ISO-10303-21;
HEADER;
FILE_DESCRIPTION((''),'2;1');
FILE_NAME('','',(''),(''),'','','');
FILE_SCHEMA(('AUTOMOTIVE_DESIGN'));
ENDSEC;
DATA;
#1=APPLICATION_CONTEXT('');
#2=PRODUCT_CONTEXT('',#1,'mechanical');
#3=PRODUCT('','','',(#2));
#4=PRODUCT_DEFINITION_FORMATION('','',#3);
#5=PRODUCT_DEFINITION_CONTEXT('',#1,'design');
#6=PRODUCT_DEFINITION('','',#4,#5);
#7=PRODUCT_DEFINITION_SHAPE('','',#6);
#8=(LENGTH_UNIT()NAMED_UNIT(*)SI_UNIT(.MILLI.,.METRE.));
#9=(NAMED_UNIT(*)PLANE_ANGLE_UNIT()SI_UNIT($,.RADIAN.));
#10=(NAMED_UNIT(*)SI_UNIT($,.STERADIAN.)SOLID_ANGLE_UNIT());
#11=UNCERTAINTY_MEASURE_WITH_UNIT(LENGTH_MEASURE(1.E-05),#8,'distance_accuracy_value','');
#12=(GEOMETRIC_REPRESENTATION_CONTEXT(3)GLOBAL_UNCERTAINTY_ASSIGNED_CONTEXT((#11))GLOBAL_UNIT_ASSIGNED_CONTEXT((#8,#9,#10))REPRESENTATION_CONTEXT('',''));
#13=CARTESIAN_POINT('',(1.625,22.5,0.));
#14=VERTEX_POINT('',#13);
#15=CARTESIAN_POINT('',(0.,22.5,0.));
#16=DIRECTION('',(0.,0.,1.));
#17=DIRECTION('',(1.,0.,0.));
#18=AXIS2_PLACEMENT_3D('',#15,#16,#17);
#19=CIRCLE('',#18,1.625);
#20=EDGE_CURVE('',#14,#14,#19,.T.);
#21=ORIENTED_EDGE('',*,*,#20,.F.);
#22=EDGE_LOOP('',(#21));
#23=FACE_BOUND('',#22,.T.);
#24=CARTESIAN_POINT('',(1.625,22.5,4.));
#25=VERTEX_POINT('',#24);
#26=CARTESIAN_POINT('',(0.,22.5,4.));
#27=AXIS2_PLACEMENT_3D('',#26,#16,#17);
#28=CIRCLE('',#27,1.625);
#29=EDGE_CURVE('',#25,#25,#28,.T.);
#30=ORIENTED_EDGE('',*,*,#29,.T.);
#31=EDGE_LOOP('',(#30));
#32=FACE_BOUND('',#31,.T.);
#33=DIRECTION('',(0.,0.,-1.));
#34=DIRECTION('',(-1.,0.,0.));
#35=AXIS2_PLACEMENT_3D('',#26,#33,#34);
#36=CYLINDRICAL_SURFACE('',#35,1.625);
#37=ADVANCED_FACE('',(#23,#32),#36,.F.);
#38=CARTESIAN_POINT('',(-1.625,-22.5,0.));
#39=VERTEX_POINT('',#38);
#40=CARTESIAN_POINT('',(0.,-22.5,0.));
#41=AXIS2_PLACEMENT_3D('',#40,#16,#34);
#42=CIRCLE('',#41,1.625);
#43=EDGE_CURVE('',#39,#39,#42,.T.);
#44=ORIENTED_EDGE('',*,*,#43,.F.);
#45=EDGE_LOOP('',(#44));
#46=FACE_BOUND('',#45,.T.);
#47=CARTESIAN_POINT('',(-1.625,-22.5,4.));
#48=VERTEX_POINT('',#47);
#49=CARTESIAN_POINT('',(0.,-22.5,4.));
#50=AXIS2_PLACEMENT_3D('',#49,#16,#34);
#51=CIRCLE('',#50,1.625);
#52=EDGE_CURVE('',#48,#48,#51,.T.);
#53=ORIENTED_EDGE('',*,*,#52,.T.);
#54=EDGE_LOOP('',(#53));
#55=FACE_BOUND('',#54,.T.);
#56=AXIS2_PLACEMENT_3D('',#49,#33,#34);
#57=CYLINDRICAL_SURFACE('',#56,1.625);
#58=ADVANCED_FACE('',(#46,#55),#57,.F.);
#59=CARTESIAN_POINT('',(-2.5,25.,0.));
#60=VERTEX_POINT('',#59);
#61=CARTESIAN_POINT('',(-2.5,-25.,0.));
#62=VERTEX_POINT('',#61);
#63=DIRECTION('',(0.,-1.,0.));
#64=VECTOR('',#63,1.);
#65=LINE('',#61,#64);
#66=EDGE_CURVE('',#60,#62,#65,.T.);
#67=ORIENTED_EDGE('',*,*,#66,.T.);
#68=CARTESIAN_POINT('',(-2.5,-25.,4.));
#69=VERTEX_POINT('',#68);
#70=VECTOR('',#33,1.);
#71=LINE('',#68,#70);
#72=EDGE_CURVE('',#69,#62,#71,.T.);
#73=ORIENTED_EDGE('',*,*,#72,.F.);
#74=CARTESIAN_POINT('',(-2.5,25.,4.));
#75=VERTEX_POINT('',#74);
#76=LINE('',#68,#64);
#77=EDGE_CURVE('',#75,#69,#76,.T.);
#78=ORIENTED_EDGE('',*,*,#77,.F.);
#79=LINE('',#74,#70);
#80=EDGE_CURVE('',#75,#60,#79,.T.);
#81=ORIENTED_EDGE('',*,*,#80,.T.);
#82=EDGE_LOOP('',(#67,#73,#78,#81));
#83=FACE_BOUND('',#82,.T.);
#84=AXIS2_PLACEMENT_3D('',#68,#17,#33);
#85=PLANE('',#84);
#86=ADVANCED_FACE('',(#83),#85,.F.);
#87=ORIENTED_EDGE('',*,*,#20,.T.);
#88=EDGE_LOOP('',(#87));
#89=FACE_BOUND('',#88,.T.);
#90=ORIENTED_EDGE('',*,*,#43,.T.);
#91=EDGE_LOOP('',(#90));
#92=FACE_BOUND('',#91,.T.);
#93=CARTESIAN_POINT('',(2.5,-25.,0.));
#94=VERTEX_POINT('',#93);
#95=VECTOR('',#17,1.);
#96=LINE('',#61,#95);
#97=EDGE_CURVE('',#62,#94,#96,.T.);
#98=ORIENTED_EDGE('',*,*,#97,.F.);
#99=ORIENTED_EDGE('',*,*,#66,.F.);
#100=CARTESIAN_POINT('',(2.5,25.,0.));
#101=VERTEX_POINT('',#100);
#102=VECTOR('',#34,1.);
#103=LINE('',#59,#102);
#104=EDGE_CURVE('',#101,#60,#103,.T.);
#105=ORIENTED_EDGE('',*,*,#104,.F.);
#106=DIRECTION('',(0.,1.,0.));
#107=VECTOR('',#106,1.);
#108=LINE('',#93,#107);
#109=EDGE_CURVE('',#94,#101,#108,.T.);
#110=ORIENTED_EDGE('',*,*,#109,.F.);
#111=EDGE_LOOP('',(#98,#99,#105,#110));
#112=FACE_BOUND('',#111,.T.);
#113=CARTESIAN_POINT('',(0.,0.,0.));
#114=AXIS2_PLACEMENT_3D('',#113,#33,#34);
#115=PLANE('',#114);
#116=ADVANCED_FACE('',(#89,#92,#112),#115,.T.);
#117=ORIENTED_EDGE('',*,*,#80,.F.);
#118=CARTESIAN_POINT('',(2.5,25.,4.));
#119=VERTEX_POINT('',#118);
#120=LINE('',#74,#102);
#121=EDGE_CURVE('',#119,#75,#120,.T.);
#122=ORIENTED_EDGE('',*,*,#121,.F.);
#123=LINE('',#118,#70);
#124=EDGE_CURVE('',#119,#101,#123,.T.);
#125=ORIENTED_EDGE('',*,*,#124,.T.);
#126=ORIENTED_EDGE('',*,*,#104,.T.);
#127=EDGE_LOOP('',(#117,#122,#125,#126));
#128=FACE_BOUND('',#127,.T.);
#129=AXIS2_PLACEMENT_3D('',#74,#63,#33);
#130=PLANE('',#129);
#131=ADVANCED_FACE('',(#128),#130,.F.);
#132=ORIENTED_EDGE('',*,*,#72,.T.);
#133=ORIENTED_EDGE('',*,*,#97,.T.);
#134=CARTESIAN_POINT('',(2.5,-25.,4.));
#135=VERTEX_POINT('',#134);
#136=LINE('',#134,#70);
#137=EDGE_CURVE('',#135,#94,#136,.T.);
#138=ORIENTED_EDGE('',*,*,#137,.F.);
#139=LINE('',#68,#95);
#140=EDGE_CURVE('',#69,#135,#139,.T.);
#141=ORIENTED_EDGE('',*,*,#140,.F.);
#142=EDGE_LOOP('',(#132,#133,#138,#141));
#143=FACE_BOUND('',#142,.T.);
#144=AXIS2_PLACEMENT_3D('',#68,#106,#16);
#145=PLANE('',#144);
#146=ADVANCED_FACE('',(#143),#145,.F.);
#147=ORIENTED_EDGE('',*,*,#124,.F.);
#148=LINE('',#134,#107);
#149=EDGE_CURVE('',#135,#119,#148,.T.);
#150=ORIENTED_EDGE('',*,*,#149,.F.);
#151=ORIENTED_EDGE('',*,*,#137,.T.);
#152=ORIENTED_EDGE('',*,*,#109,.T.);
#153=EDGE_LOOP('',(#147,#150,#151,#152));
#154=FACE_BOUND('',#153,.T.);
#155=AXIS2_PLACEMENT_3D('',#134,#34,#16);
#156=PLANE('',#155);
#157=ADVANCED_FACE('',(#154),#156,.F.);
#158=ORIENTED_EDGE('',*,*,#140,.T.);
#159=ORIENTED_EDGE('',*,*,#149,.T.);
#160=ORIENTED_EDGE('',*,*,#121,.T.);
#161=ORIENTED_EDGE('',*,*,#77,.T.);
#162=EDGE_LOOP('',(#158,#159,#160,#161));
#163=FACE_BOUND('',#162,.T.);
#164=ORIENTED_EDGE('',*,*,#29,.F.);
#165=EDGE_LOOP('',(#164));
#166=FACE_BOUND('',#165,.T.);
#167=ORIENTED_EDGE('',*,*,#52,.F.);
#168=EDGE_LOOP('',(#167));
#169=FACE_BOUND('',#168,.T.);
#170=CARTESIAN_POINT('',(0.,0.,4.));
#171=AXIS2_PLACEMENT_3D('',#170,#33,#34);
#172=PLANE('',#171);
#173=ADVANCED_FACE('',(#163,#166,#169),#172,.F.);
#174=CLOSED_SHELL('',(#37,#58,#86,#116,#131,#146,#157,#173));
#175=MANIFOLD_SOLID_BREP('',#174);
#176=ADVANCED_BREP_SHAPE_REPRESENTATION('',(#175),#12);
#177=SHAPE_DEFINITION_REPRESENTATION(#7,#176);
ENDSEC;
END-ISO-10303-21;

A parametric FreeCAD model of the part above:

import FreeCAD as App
import Part
import Sketcher
from FreeCAD import Vector
Q = App.Units.Quantity


def add_polygon(sketch, points):
    """Adds a closed chain of lines whose ends are joined by coincident constraints."""
    first, n = sketch.GeometryCount, len(points)
    for a, b in zip(points, points[1:] + points[:1]):
        sketch.addGeometry(Part.LineSegment(App.Vector(*a, 0), App.Vector(*b, 0)), False)
    for i in range(n):
        sketch.addConstraint(Sketcher.Constraint("Coincident", first + i, 2, first + (i + 1) % n, 1))

doc = App.newDocument("Part")
body = doc.addObject("PartDesign::Body", "Body")

sketch1 = body.newObject("Sketcher::SketchObject", "Sketch")
sketch1.AttachmentSupport = (doc.getObject("XY_Plane"), [""])
sketch1.MapMode = "FlatFace"
add_polygon(sketch1, [(-2.5, 25), (-2.5, -25), (2.5, -25), (2.5, 25)])
sketch1.addGeometry(Part.Circle(Vector(0, -22.5, 0), Vector(0, 0, 1), 1.6), False)
sketch1.addGeometry(Part.Circle(Vector(0, 22.5, 0), Vector(0, 0, 1), 1.6), False)
sketch1.addConstraint([
    Sketcher.Constraint("Vertical", 0),
    Sketcher.Constraint("Horizontal", 1),
    Sketcher.Constraint("Vertical", 2),
    Sketcher.Constraint("Horizontal", 3),
    Sketcher.Constraint("Equal", 4, 5),
    Sketcher.Constraint("Symmetric", 4, 3, 5, 3, -1, 1),
    Sketcher.Constraint("Symmetric", 0, 2, 2, 2, -1, 1),
    Sketcher.Constraint("PointOnObject", 4, 3, -2),
    Sketcher.Constraint("Diameter", 4, Q("3.25 mm")),
    Sketcher.Constraint("DistanceX", 1, 1, 1, 2, Q("5 mm")),
    Sketcher.Constraint("DistanceY", 0, 2, 0, 1, Q("50 mm")),
    Sketcher.Constraint("DistanceY", 4, 3, 5, 3, Q("45 mm")),
])
pad1 = body.newObject("PartDesign::Pad", "Pad")
pad1.Profile = sketch1
pad1.Length = 4

doc.recompute()
